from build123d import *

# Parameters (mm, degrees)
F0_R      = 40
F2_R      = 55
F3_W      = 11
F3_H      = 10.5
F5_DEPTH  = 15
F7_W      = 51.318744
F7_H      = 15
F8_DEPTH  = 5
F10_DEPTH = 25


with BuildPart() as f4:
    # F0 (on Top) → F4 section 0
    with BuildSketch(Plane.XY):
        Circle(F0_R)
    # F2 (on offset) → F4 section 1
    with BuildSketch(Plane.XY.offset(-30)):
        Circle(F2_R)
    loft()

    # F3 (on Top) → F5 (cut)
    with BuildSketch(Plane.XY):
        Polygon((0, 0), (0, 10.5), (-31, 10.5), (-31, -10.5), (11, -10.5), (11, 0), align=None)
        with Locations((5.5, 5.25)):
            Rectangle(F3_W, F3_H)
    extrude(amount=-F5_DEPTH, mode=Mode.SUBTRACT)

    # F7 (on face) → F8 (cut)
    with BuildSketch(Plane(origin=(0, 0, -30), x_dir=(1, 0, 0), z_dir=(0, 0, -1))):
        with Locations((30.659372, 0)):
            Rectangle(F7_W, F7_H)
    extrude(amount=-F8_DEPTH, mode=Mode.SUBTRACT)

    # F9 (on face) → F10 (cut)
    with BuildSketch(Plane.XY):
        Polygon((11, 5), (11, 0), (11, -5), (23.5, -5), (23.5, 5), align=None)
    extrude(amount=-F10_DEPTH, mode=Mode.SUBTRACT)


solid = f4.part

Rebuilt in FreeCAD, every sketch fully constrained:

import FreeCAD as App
import Part
import Sketcher
Q = App.Units.Quantity


def add_polygon(sketch, points):
    """Adds a closed chain of lines whose ends are joined by coincident constraints."""
    first, n = sketch.GeometryCount, len(points)
    for a, b in zip(points, points[1:] + points[:1]):
        sketch.addGeometry(Part.LineSegment(App.Vector(*a, 0), App.Vector(*b, 0)), False)
    for i in range(n):
        sketch.addConstraint(Sketcher.Constraint("Coincident", first + i, 2, first + (i + 1) % n, 1))

doc = App.newDocument("Part")
body = doc.addObject("PartDesign::Body", "Body")

sketch1 = body.newObject("Sketcher::SketchObject", "Sketch")
sketch1.AttachmentSupport = (doc.getObject("XY_Plane"), [""])
sketch1.MapMode = "FlatFace"
sketch1.addGeometry(Part.Circle(App.Vector(0, 0, 0), App.Vector(0, 0, 1), 40), False)
sketch1.addConstraint([
    Sketcher.Constraint("Coincident", 0, 3, -1, 1),
    Sketcher.Constraint("Diameter", 0, Q("80 mm")),
])

sketch2 = body.newObject("Sketcher::SketchObject", "Sketch001")
sketch2.AttachmentSupport = (doc.getObject("XY_Plane"), [""])
sketch2.MapMode = "FlatFace"
sketch2.AttachmentOffset = App.Placement(App.Vector(0, 0, -30), App.Rotation())
sketch2.addGeometry(Part.Circle(App.Vector(0, 0, 0), App.Vector(0, 0, 1), 55), False)
sketch2.addConstraint([
    Sketcher.Constraint("Coincident", 0, 3, -1, 1),
    Sketcher.Constraint("Diameter", 0, Q("110 mm")),
])

additiveloft = body.newObject("PartDesign::AdditiveLoft", "AdditiveLoft")
additiveloft.Profile = sketch1
additiveloft.Sections = [sketch2]

sketch3 = body.newObject("Sketcher::SketchObject", "Sketch002")
sketch3.AttachmentSupport = (doc.getObject("XY_Plane"), [""])
sketch3.MapMode = "FlatFace"
add_polygon(sketch3, [(-31, 10), (-31, -10), (11, -10), (11, 10)])
sketch3.addConstraint([
    Sketcher.Constraint("Vertical", 0),
    Sketcher.Constraint("Horizontal", 1),
    Sketcher.Constraint("Vertical", 2),
    Sketcher.Constraint("Horizontal", 3),
    Sketcher.Constraint("DistanceX", 1, 1, 1, 2, Q("42 mm")),
    Sketcher.Constraint("DistanceY", 0, 2, 0, 1, Q("21 mm")),
    Sketcher.Constraint("DistanceX", 0, 2, -1, 1, Q("31 mm")),
    Sketcher.Constraint("DistanceY", 0, 2, -1, 1, Q("10.5 mm")),
])
pocket1 = body.newObject("PartDesign::Pocket", "Pocket")
pocket1.Profile = sketch3
pocket1.Length = 15

sketch4 = body.newObject("Sketcher::SketchObject", "Sketch003")
sketch4.AttachmentSupport = (doc.getObject("XY_Plane"), [""])
sketch4.MapMode = "FlatFace"
sketch4.AttachmentOffset = App.Placement(App.Vector(0, 0, -30), App.Rotation())
add_polygon(sketch4, [(5, -8), (5, 8), (56, 8), (56, -8)])
sketch4.addConstraint([
    Sketcher.Constraint("Vertical", 0),
    Sketcher.Constraint("Horizontal", 1),
    Sketcher.Constraint("Vertical", 2),
    Sketcher.Constraint("Horizontal", 3),
    Sketcher.Constraint("DistanceY", 0, 1, 0, 2, Q("15 mm")),
    Sketcher.Constraint("DistanceX", -1, 1, 0, 2, Q("5 mm")),
    Sketcher.Constraint("DistanceY", -1, 1, 0, 2, Q("7.5 mm")),
    Sketcher.Constraint("DistanceX", 1, 1, 1, 2, Q("51.318744 mm")),
])
pocket2 = body.newObject("PartDesign::Pocket", "Pocket001")
pocket2.Profile = sketch4
pocket2.Length = 5
pocket2.Reversed = True

sketch5 = body.newObject("Sketcher::SketchObject", "Sketch004")
sketch5.AttachmentSupport = (doc.getObject("XY_Plane"), [""])
sketch5.MapMode = "FlatFace"
add_polygon(sketch5, [(11, 5), (11, -5), (24, -5), (24, 5)])
sketch5.addConstraint([
    Sketcher.Constraint("Vertical", 0),
    Sketcher.Constraint("Horizontal", 1),
    Sketcher.Constraint("Vertical", 2),
    Sketcher.Constraint("Horizontal", 3),
    Sketcher.Constraint("DistanceY", 0, 2, 0, 1, Q("10 mm")),
    Sketcher.Constraint("DistanceX", 1, 1, 1, 2, Q("12.5 mm")),
    Sketcher.Constraint("DistanceX", -1, 1, 0, 2, Q("11 mm")),
    Sketcher.Constraint("DistanceY", 0, 2, -1, 1, Q("5 mm")),
])
pocket3 = body.newObject("PartDesign::Pocket", "Pocket002")
pocket3.Profile = sketch5
pocket3.Length = 25

doc.recompute()
